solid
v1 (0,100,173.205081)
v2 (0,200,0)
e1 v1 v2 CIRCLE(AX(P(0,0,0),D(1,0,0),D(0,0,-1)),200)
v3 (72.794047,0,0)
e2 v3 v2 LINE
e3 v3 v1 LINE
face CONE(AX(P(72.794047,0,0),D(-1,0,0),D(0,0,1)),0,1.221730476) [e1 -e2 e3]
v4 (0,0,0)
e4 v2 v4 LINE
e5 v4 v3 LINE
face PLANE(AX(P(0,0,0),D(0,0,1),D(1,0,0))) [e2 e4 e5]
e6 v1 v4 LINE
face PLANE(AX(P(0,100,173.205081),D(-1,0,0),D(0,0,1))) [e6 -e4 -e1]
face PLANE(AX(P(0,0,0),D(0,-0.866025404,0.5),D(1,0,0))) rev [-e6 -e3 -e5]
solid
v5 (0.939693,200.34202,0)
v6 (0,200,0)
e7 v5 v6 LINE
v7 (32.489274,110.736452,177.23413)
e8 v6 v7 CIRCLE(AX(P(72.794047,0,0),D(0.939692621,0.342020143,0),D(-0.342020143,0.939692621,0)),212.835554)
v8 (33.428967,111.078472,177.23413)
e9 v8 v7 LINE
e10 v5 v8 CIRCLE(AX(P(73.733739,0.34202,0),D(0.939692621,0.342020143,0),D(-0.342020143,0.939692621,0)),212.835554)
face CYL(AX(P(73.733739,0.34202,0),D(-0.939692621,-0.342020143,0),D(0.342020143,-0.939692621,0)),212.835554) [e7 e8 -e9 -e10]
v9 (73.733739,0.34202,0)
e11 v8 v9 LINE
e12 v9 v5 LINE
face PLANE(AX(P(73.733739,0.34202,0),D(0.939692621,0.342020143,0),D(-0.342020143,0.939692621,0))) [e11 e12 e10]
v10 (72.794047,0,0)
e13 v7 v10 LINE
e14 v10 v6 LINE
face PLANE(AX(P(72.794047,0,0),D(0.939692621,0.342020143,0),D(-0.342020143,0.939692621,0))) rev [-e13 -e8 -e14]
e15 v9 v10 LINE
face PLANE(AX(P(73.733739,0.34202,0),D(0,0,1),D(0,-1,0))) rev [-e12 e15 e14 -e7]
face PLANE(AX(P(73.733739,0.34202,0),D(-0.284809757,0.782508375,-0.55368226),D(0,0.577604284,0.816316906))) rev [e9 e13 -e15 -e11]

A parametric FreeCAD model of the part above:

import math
import FreeCAD as App
import Part
import Sketcher

V = App.Vector
Q = App.Units.Quantity

doc = App.newDocument("Part")
params = doc.addObject("Spreadsheet::Sheet", "Params")
for row, (alias, value) in enumerate([
    ("sketch1_height", "200 mm"),
    ("revolution_angle", "300 deg"),
    ("pad1_length", "1 mm"),
], start=1):
    params.set(f"A{row}", alias)
    params.set(f"B{row}", "=" + value)
    params.setAlias(f"B{row}", alias)

body = doc.addObject("PartDesign::Body", "Body")
body.AllowCompound = True

# Sketch on XY plane
sketch1 = body.newObject("Sketcher::SketchObject", "Sketch")
sketch1.AttachmentSupport = (doc.getObject("XY_Plane"), [""])
sketch1.MapMode = "FlatFace"
sketch1.addGeometry(Part.LineSegment(V(0, 0, 0), V(73, 0, 0)), False)
sketch1.addGeometry(Part.LineSegment(V(73, 0, 0), V(0, 200, 0)), False)
sketch1.addGeometry(Part.LineSegment(V(0, 200, 0), V(0, 0, 0)), False)
sketch1.addConstraint(Sketcher.Constraint("Coincident", 0, 2, 1, 1))
sketch1.addConstraint(Sketcher.Constraint("Coincident", 1, 2, 2, 1))
sketch1.addConstraint(Sketcher.Constraint("Coincident", 2, 2, 0, 1))
sketch1.addConstraint(Sketcher.Constraint("Horizontal", 0))
sketch1.addConstraint(Sketcher.Constraint("Vertical", 2))
sketch1.addConstraint(Sketcher.Constraint("Coincident", 2, 2, -1, 1))
sketch1.addConstraint(Sketcher.Constraint("DistanceY", 2, 2, 2, 1, Q("200 mm")))
sketch1.addConstraint(Sketcher.Constraint("Angle", 1, Q("110 deg")))
sketch1.setExpression("Constraints[6]", "Params.sketch1_height")
revolution = body.newObject("PartDesign::Revolution", "Revolution")
revolution.Profile = sketch1
revolution.ReferenceAxis = (sketch1, ["H_Axis"])
revolution.setExpression("Angle", "Params.revolution_angle")
revolution.Reversed = True

# Sketch on an angled plane
sketch2 = body.newObject("Sketcher::SketchObject", "Sketch001")
sketch2.Placement = App.Placement(V(64.278761, 23.395556, 0), App.Rotation(V(0, 0, -1), V(-0.342020143, 0.939692621, 0), V(0.939692621, 0.342020143, 0), "ZXY"))
sketch2.addGeometry(Part.LineSegment(V(-177, 93, 0), V(0, -25, 0)), False)
sketch2.addGeometry(Part.LineSegment(V(0, -25, 0), V(0, 188, 0)), False)
sketch2.addGeometry(Part.ArcOfCircle(Part.Circle(V(0, -25, 0), V(0, 0, 1), 213), math.radians(90), math.radians(146)), False)
sketch2.addConstraint(Sketcher.Constraint("Coincident", 0, 2, 1, 1))
sketch2.addConstraint(Sketcher.Constraint("Coincident", 1, 2, 2, 1))
sketch2.addConstraint(Sketcher.Constraint("Coincident", 2, 2, 0, 1))
sketch2.addConstraint(Sketcher.Constraint("Vertical", 1))
sketch2.addConstraint(Sketcher.Constraint("Coincident", 0, 2, 2, 3))
sketch2.addConstraint(Sketcher.Constraint("PointOnObject", 2, 3, -2))
sketch2.addConstraint(Sketcher.Constraint("Angle", 0, Q("-33.62 deg")))
sketch2.addConstraint(Sketcher.Constraint("Radius", 2, Q("212.835554 mm")))
sketch2.addConstraint(Sketcher.Constraint("DistanceY", 2, 3, -1, 1, Q("24.89703 mm")))
pad1 = body.newObject("PartDesign::Pad", "Pad")
pad1.Profile = sketch2
pad1.setExpression("Length", "Params.pad1_length")

doc.recompute()
